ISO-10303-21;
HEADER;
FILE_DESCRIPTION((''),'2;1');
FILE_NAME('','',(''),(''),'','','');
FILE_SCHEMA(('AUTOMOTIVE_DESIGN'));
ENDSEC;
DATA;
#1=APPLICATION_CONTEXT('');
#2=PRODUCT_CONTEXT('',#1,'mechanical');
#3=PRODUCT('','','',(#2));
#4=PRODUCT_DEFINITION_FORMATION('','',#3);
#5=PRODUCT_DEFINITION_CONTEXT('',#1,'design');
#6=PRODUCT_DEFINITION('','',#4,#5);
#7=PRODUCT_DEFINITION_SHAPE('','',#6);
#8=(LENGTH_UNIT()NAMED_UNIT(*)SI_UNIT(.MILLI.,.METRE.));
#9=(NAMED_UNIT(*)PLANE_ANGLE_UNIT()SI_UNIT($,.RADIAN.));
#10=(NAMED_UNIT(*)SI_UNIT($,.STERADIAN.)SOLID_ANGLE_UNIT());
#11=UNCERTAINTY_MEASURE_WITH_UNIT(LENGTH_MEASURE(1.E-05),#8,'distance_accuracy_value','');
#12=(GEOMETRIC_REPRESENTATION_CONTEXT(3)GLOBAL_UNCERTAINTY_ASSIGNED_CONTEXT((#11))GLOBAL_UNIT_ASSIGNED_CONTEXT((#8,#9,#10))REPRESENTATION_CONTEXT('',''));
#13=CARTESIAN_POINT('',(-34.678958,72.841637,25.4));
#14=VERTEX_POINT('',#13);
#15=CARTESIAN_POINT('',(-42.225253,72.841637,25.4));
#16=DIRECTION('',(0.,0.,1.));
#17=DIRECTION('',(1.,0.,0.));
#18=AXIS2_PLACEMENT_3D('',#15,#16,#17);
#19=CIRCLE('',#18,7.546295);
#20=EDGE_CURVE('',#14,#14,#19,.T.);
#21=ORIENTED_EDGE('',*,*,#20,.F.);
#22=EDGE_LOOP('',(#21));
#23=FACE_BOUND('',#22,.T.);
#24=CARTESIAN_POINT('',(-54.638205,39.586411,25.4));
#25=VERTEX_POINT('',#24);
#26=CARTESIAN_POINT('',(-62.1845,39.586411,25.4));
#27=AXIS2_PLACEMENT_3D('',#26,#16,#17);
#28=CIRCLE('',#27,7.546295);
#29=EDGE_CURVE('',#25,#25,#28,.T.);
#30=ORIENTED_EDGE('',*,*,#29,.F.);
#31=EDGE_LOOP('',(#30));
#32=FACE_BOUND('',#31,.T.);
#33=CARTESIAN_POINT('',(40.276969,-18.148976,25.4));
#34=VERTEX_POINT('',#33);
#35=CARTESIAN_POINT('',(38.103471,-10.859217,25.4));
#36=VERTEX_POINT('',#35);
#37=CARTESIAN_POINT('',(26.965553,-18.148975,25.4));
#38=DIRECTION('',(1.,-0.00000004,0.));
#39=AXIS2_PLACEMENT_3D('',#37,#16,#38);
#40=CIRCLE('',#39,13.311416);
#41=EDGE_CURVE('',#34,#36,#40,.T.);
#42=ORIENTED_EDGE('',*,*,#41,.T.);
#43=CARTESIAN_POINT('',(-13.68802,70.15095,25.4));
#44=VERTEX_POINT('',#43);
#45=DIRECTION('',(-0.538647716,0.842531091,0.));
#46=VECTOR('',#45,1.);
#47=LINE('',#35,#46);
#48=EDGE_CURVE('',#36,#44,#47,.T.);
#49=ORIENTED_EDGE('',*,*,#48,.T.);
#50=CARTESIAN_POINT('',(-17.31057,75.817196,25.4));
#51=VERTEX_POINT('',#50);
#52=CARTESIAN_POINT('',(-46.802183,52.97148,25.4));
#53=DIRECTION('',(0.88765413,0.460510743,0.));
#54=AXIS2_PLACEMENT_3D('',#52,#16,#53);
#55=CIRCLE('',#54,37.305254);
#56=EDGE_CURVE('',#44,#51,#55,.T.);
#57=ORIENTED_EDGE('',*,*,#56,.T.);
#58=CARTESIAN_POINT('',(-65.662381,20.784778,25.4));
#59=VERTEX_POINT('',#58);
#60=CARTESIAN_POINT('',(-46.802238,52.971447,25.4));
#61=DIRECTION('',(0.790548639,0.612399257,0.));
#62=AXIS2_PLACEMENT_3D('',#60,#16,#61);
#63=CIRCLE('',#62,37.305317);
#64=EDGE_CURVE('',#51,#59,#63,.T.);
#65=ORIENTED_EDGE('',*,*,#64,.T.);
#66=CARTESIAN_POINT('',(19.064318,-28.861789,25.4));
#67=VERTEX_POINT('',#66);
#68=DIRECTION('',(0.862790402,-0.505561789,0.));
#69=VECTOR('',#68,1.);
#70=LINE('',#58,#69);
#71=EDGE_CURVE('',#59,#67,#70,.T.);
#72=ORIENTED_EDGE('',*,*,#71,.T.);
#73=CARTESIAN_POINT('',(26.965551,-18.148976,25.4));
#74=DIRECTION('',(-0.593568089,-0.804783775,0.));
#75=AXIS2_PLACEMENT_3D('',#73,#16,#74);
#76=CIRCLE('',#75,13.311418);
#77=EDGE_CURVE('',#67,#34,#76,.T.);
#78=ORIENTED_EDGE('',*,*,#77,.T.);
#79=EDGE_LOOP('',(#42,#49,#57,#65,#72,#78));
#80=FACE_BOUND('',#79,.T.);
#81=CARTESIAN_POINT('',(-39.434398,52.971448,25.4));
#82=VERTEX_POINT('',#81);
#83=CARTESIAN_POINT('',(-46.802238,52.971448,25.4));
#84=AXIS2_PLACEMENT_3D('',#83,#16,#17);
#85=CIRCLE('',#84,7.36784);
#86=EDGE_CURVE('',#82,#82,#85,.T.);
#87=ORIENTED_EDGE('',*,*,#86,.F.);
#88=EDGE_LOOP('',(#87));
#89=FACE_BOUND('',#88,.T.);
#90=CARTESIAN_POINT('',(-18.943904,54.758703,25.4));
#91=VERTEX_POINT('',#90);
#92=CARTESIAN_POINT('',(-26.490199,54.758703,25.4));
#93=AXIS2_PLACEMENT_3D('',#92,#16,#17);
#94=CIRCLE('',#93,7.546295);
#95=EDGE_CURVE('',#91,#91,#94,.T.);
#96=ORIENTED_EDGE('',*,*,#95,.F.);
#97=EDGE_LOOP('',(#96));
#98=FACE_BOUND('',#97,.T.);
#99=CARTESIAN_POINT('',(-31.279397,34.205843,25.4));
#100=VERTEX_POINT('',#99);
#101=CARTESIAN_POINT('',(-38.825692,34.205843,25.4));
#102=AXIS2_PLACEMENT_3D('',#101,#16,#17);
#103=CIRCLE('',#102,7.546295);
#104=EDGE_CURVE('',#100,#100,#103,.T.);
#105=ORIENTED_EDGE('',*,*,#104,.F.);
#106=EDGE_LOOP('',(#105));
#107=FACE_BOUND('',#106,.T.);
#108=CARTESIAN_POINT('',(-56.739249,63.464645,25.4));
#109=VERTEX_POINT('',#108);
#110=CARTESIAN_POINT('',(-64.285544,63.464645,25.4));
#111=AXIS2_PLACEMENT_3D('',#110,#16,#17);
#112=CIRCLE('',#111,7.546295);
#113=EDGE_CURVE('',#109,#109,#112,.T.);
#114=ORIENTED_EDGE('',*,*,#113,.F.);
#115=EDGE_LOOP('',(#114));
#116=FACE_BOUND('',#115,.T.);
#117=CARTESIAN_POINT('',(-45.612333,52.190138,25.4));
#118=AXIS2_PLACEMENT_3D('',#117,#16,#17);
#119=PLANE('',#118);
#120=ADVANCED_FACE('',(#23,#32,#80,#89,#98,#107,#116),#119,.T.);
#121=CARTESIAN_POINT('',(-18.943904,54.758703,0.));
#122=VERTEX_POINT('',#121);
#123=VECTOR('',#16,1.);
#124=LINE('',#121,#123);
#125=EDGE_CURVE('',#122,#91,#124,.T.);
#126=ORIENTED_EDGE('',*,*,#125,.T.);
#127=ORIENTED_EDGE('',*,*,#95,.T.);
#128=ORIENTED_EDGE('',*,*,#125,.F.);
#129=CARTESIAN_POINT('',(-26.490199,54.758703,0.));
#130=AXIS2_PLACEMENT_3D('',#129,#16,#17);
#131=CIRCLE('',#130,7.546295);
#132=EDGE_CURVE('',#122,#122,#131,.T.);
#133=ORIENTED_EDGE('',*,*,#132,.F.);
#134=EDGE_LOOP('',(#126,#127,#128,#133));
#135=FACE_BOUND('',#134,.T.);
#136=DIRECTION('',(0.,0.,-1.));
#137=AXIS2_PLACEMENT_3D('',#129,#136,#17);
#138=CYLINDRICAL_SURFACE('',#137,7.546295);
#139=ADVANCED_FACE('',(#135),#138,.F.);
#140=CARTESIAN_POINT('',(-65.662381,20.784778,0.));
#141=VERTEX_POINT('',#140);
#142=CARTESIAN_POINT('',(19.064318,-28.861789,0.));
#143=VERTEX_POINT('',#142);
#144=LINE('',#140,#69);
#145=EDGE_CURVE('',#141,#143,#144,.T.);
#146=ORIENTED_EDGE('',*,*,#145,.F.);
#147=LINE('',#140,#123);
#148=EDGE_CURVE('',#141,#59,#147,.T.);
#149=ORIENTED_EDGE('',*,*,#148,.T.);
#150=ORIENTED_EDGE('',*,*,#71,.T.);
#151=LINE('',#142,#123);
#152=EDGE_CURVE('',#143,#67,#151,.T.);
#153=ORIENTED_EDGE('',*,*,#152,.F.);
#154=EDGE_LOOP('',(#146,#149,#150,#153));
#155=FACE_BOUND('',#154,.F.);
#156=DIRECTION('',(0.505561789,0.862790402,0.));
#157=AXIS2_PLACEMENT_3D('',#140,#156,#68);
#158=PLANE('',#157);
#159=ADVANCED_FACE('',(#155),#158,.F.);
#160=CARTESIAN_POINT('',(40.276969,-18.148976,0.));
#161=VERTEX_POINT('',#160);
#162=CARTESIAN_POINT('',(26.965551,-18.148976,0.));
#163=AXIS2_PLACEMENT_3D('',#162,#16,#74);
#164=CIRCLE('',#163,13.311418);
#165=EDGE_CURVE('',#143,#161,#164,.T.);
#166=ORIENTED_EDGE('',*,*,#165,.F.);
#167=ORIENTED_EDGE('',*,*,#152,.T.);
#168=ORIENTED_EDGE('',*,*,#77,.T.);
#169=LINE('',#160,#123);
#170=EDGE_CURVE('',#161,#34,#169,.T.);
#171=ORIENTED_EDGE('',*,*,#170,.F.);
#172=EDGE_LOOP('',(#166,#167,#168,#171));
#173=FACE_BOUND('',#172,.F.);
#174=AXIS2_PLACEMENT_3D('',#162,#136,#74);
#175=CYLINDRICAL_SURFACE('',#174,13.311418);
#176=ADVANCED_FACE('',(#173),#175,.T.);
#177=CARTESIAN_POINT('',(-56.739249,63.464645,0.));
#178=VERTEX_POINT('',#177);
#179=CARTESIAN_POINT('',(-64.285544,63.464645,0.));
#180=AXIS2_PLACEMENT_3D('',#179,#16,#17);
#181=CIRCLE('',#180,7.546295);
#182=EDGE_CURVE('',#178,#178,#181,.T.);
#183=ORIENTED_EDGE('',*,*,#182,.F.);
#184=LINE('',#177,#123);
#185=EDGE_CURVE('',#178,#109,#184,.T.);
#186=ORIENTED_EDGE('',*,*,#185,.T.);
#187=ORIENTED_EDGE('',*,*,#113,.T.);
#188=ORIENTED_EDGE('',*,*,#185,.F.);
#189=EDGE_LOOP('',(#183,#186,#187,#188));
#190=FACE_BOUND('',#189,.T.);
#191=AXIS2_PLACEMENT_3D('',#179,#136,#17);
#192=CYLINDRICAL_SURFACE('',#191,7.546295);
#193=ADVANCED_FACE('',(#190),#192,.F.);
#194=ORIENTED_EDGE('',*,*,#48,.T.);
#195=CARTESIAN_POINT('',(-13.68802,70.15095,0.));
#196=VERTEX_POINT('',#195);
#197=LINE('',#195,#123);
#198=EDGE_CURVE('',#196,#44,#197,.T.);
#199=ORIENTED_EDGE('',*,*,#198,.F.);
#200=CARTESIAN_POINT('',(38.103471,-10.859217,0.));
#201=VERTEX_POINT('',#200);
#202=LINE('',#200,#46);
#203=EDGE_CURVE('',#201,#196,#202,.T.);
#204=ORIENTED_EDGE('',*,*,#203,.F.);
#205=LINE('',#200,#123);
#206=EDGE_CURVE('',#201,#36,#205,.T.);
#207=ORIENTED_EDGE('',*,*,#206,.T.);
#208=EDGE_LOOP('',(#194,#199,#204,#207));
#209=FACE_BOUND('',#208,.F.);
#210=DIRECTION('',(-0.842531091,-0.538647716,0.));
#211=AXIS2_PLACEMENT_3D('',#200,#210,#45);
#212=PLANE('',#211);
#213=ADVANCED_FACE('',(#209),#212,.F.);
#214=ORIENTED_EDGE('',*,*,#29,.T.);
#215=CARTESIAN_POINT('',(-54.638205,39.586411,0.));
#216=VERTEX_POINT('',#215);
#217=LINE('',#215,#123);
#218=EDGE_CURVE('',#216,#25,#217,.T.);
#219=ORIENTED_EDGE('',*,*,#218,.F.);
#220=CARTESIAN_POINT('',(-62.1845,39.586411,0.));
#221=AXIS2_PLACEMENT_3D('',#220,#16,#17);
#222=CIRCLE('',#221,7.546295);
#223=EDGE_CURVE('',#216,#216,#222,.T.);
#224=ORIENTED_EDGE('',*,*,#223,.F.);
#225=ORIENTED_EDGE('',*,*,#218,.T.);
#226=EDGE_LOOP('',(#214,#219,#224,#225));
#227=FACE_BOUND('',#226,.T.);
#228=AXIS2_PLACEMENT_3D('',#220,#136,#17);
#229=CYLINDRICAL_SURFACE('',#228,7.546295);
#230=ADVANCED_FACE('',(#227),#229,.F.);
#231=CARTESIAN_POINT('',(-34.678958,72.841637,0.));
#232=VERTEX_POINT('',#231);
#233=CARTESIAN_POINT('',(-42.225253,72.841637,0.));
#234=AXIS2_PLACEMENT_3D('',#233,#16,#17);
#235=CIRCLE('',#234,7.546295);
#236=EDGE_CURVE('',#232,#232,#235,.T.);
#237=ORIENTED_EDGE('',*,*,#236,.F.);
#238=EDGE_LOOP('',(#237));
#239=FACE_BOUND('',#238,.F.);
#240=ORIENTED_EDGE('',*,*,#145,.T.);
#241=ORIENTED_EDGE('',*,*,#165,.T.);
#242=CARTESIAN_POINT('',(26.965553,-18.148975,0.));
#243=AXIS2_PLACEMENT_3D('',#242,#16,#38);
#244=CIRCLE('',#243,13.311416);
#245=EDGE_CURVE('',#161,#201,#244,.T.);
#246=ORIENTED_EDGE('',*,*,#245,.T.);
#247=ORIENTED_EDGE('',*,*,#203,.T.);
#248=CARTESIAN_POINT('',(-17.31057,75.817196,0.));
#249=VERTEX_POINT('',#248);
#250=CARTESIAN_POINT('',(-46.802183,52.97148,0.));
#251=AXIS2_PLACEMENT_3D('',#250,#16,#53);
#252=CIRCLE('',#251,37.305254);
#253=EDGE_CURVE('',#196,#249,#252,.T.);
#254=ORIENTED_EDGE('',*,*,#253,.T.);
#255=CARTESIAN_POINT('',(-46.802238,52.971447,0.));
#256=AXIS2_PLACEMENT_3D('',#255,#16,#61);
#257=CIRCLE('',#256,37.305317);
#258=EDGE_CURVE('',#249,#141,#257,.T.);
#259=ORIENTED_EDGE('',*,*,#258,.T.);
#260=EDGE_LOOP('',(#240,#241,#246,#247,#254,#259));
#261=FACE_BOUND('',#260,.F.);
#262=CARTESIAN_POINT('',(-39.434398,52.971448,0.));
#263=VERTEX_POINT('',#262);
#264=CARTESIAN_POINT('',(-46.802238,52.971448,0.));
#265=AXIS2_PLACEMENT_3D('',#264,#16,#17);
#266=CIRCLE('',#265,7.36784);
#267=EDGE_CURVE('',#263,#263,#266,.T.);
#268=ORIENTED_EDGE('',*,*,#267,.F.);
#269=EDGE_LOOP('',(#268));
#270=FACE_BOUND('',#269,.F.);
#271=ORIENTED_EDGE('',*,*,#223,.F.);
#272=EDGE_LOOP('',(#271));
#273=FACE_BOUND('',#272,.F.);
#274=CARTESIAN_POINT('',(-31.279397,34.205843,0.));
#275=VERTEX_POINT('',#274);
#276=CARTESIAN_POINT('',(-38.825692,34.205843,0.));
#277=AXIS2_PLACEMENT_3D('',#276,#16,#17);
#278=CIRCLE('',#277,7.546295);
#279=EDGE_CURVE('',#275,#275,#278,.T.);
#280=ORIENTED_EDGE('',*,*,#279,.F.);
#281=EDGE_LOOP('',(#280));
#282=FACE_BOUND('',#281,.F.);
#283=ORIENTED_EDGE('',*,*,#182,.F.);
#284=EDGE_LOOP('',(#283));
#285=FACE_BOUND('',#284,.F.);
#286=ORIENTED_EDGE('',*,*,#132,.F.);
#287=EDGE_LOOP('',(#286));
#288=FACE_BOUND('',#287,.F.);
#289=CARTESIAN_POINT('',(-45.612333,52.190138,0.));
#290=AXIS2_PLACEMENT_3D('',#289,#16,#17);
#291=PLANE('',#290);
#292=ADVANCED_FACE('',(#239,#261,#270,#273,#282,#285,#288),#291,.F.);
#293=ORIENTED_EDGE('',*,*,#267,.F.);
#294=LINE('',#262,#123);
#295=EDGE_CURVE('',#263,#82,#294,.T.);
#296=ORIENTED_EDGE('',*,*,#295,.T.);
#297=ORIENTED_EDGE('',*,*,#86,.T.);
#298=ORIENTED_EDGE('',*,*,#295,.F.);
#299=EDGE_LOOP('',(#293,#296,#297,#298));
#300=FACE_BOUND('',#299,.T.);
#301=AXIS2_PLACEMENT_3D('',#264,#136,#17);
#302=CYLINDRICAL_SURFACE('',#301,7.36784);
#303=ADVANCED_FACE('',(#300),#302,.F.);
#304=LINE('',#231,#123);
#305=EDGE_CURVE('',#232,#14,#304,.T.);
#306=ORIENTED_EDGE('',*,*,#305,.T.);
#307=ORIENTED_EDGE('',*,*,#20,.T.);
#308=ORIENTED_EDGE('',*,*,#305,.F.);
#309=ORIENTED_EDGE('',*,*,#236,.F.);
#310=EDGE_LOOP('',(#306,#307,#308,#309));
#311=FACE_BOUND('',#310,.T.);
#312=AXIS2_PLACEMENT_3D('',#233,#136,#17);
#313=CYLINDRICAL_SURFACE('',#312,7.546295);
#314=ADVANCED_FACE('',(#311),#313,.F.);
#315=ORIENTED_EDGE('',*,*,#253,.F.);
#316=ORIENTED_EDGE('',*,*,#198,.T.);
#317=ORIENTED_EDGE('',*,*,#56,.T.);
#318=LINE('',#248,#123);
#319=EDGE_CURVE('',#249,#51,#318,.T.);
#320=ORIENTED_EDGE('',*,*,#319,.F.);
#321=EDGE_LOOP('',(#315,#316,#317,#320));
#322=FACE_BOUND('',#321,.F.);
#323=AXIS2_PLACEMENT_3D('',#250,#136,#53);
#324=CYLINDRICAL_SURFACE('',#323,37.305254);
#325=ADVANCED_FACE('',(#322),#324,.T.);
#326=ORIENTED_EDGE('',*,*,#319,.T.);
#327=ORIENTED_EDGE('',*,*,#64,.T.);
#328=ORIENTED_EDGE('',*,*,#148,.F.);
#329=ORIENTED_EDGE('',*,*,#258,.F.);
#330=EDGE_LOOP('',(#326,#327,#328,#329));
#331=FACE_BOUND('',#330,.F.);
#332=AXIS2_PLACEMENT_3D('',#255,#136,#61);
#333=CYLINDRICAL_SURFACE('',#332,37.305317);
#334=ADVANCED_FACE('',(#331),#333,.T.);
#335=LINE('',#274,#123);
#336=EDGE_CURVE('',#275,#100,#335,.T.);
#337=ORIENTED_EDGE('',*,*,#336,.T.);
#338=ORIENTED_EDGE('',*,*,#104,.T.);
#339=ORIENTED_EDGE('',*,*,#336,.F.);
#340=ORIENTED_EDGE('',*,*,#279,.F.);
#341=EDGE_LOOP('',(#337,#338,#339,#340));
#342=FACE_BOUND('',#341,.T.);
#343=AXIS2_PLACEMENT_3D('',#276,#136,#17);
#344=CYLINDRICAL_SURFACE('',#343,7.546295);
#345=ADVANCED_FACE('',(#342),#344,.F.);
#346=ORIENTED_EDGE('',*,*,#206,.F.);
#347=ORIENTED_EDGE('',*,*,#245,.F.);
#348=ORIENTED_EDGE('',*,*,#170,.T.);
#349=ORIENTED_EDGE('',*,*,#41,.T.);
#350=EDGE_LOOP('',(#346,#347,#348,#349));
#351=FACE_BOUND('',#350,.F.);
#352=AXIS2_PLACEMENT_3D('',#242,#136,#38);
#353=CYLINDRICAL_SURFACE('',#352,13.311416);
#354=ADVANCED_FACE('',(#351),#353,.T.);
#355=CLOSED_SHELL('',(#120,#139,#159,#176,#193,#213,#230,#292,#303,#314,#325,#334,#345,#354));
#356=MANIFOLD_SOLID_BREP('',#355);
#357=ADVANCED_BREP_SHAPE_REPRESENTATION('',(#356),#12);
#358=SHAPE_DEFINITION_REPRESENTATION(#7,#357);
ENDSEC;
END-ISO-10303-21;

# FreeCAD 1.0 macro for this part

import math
import FreeCAD as App
import Part
import Sketcher

V = App.Vector
Q = App.Units.Quantity

doc = App.newDocument("Part")
body = doc.addObject("PartDesign::Body", "Body")

sketch1 = doc.addObject("Sketcher::SketchObject", "Sketch")
body.addObject(sketch1)
sketch1.AttachmentSupport = (doc.XY_Plane, [""])
sketch1.MapMode = "FlatFace"
sketch1.addGeometry([
    Part.ArcOfCircle(Part.Circle(V(-46.802183, 52.97148, 0), V(0, 0, 1), 37.305254), math.radians(27.42007), math.radians(37.7632)),
    Part.ArcOfCircle(Part.Circle(V(-46.802238, 52.971447, 0), V(0, 0, 1), 37.305317), math.radians(37.763188), math.radians(239.631347)),
    Part.LineSegment(V(-65.662381, 20.784778, 0), V(19.064318, -28.861789, 0)),
    Part.ArcOfCircle(Part.Circle(V(26.965551, -18.148976, 0), V(0, 0, 1), 13.311418), math.radians(-126.410622), math.radians(-0.000001)),
    Part.ArcOfCircle(Part.Circle(V(26.965553, -18.148975, 0), V(0, 0, 1), 13.311416), math.radians(-0.000002), math.radians(33.204715)),
    Part.LineSegment(V(38.103471, -10.859217, 0), V(-13.68802, 70.15095, 0)),
    Part.Circle(V(-62.1845, 39.586411, 0), V(0, 0, 1), 7.546295),
    Part.Circle(V(-46.802238, 52.971448, 0), V(0, 0, 1), 7.36784),
    Part.Circle(V(-38.825692, 34.205843, 0), V(0, 0, 1), 7.546295),
    Part.Circle(V(-64.285544, 63.464645, 0), V(0, 0, 1), 7.546295),
    Part.Circle(V(-26.490199, 54.758703, 0), V(0, 0, 1), 7.546295),
    Part.Circle(V(-42.225253, 72.841637, 0), V(0, 0, 1), 7.546295),
], False)
sketch1.addConstraint([
    Sketcher.Constraint("Coincident", 0, 2, 1, 1),
    Sketcher.Constraint("Coincident", 1, 2, 2, 1),
    Sketcher.Constraint("Coincident", 2, 2, 3, 1),
    Sketcher.Constraint("Coincident", 3, 2, 4, 1),
    Sketcher.Constraint("Coincident", 4, 2, 5, 1),
    Sketcher.Constraint("Coincident", 5, 2, 0, 1),
    Sketcher.Constraint("Coincident", 4, 3, 3, 3),
    Sketcher.Constraint("Coincident", 7, 3, 1, 3),
    Sketcher.Constraint("Diameter", 6, Q("15.09259 mm")),
    Sketcher.Constraint("Diameter", 7, Q("14.73568 mm")),
    Sketcher.Constraint("Diameter", 8, Q("15.09259 mm")),
    Sketcher.Constraint("Diameter", 9, Q("15.09259 mm")),
    Sketcher.Constraint("Diameter", 10, Q("15.09259 mm")),
    Sketcher.Constraint("Diameter", 11, Q("15.09259 mm")),
    Sketcher.Constraint("Radius", 3, Q("13.311418 mm")),
    Sketcher.Constraint("Radius", 0, Q("37.305254 mm")),
    Sketcher.Constraint("Radius", 1, Q("37.305317 mm")),
    Sketcher.Constraint("DistanceX", 6, 3, -1, 1, Q("62.1845 mm")),
    Sketcher.Constraint("DistanceX", 10, 3, -1, 1, Q("26.490199 mm")),
    Sketcher.Constraint("DistanceY", 8, 3, 9, 3, Q("29.258802 mm")),
    Sketcher.Constraint("DistanceY", 1, 2, 0, 3, Q("32.186702 mm")),
    Sketcher.Constraint("DistanceX", 1, 2, 2, 2, Q("84.726699 mm")),
    Sketcher.Constraint("DistanceY", 7, 3, 5, 2, Q("17.179502 mm")),
    Sketcher.Constraint("Distance", 2, Q("98.20079 mm")),
    Sketcher.Constraint("DistanceY", -1, 1, 0, 3, Q("52.97148 mm")),
    Sketcher.Constraint("DistanceX", -1, 1, 3, 3, Q("26.965551 mm")),
    Sketcher.Constraint("DistanceY", -1, 1, 6, 3, Q("39.586411 mm")),
    Sketcher.Constraint("DistanceX", 7, 3, -1, 1, Q("46.802238 mm")),
    Sketcher.Constraint("DistanceY", -1, 1, 7, 3, Q("52.971448 mm")),
    Sketcher.Constraint("DistanceX", 8, 3, -1, 1, Q("38.825692 mm")),
    Sketcher.Constraint("DistanceX", 0, 2, -1, 1, Q("17.31057 mm")),
    Sketcher.Constraint("DistanceX", -1, 1, 4, 2, Q("38.103471 mm")),
    Sketcher.Constraint("DistanceY", 3, 3, 8, 3, Q("52.354819 mm")),
    Sketcher.Constraint("DistanceX", 9, 3, 0, 3, Q("17.483361 mm")),
    Sketcher.Constraint("DistanceY", 8, 3, 10, 3, Q("20.55286 mm")),
    Sketcher.Constraint("DistanceX", 0, 3, 11, 3, Q("4.57693 mm")),
    Sketcher.Constraint("DistanceY", 7, 3, 11, 3, Q("19.870189 mm")),
    Sketcher.Constraint("DistanceY", 3, 2, 8, 3, Q("52.354819 mm")),
])
pad1 = doc.addObject("PartDesign::Pad", "Pad")
body.addObject(pad1)
pad1.Profile = sketch1
pad1.Length = Q("1 in")

doc.recompute()
